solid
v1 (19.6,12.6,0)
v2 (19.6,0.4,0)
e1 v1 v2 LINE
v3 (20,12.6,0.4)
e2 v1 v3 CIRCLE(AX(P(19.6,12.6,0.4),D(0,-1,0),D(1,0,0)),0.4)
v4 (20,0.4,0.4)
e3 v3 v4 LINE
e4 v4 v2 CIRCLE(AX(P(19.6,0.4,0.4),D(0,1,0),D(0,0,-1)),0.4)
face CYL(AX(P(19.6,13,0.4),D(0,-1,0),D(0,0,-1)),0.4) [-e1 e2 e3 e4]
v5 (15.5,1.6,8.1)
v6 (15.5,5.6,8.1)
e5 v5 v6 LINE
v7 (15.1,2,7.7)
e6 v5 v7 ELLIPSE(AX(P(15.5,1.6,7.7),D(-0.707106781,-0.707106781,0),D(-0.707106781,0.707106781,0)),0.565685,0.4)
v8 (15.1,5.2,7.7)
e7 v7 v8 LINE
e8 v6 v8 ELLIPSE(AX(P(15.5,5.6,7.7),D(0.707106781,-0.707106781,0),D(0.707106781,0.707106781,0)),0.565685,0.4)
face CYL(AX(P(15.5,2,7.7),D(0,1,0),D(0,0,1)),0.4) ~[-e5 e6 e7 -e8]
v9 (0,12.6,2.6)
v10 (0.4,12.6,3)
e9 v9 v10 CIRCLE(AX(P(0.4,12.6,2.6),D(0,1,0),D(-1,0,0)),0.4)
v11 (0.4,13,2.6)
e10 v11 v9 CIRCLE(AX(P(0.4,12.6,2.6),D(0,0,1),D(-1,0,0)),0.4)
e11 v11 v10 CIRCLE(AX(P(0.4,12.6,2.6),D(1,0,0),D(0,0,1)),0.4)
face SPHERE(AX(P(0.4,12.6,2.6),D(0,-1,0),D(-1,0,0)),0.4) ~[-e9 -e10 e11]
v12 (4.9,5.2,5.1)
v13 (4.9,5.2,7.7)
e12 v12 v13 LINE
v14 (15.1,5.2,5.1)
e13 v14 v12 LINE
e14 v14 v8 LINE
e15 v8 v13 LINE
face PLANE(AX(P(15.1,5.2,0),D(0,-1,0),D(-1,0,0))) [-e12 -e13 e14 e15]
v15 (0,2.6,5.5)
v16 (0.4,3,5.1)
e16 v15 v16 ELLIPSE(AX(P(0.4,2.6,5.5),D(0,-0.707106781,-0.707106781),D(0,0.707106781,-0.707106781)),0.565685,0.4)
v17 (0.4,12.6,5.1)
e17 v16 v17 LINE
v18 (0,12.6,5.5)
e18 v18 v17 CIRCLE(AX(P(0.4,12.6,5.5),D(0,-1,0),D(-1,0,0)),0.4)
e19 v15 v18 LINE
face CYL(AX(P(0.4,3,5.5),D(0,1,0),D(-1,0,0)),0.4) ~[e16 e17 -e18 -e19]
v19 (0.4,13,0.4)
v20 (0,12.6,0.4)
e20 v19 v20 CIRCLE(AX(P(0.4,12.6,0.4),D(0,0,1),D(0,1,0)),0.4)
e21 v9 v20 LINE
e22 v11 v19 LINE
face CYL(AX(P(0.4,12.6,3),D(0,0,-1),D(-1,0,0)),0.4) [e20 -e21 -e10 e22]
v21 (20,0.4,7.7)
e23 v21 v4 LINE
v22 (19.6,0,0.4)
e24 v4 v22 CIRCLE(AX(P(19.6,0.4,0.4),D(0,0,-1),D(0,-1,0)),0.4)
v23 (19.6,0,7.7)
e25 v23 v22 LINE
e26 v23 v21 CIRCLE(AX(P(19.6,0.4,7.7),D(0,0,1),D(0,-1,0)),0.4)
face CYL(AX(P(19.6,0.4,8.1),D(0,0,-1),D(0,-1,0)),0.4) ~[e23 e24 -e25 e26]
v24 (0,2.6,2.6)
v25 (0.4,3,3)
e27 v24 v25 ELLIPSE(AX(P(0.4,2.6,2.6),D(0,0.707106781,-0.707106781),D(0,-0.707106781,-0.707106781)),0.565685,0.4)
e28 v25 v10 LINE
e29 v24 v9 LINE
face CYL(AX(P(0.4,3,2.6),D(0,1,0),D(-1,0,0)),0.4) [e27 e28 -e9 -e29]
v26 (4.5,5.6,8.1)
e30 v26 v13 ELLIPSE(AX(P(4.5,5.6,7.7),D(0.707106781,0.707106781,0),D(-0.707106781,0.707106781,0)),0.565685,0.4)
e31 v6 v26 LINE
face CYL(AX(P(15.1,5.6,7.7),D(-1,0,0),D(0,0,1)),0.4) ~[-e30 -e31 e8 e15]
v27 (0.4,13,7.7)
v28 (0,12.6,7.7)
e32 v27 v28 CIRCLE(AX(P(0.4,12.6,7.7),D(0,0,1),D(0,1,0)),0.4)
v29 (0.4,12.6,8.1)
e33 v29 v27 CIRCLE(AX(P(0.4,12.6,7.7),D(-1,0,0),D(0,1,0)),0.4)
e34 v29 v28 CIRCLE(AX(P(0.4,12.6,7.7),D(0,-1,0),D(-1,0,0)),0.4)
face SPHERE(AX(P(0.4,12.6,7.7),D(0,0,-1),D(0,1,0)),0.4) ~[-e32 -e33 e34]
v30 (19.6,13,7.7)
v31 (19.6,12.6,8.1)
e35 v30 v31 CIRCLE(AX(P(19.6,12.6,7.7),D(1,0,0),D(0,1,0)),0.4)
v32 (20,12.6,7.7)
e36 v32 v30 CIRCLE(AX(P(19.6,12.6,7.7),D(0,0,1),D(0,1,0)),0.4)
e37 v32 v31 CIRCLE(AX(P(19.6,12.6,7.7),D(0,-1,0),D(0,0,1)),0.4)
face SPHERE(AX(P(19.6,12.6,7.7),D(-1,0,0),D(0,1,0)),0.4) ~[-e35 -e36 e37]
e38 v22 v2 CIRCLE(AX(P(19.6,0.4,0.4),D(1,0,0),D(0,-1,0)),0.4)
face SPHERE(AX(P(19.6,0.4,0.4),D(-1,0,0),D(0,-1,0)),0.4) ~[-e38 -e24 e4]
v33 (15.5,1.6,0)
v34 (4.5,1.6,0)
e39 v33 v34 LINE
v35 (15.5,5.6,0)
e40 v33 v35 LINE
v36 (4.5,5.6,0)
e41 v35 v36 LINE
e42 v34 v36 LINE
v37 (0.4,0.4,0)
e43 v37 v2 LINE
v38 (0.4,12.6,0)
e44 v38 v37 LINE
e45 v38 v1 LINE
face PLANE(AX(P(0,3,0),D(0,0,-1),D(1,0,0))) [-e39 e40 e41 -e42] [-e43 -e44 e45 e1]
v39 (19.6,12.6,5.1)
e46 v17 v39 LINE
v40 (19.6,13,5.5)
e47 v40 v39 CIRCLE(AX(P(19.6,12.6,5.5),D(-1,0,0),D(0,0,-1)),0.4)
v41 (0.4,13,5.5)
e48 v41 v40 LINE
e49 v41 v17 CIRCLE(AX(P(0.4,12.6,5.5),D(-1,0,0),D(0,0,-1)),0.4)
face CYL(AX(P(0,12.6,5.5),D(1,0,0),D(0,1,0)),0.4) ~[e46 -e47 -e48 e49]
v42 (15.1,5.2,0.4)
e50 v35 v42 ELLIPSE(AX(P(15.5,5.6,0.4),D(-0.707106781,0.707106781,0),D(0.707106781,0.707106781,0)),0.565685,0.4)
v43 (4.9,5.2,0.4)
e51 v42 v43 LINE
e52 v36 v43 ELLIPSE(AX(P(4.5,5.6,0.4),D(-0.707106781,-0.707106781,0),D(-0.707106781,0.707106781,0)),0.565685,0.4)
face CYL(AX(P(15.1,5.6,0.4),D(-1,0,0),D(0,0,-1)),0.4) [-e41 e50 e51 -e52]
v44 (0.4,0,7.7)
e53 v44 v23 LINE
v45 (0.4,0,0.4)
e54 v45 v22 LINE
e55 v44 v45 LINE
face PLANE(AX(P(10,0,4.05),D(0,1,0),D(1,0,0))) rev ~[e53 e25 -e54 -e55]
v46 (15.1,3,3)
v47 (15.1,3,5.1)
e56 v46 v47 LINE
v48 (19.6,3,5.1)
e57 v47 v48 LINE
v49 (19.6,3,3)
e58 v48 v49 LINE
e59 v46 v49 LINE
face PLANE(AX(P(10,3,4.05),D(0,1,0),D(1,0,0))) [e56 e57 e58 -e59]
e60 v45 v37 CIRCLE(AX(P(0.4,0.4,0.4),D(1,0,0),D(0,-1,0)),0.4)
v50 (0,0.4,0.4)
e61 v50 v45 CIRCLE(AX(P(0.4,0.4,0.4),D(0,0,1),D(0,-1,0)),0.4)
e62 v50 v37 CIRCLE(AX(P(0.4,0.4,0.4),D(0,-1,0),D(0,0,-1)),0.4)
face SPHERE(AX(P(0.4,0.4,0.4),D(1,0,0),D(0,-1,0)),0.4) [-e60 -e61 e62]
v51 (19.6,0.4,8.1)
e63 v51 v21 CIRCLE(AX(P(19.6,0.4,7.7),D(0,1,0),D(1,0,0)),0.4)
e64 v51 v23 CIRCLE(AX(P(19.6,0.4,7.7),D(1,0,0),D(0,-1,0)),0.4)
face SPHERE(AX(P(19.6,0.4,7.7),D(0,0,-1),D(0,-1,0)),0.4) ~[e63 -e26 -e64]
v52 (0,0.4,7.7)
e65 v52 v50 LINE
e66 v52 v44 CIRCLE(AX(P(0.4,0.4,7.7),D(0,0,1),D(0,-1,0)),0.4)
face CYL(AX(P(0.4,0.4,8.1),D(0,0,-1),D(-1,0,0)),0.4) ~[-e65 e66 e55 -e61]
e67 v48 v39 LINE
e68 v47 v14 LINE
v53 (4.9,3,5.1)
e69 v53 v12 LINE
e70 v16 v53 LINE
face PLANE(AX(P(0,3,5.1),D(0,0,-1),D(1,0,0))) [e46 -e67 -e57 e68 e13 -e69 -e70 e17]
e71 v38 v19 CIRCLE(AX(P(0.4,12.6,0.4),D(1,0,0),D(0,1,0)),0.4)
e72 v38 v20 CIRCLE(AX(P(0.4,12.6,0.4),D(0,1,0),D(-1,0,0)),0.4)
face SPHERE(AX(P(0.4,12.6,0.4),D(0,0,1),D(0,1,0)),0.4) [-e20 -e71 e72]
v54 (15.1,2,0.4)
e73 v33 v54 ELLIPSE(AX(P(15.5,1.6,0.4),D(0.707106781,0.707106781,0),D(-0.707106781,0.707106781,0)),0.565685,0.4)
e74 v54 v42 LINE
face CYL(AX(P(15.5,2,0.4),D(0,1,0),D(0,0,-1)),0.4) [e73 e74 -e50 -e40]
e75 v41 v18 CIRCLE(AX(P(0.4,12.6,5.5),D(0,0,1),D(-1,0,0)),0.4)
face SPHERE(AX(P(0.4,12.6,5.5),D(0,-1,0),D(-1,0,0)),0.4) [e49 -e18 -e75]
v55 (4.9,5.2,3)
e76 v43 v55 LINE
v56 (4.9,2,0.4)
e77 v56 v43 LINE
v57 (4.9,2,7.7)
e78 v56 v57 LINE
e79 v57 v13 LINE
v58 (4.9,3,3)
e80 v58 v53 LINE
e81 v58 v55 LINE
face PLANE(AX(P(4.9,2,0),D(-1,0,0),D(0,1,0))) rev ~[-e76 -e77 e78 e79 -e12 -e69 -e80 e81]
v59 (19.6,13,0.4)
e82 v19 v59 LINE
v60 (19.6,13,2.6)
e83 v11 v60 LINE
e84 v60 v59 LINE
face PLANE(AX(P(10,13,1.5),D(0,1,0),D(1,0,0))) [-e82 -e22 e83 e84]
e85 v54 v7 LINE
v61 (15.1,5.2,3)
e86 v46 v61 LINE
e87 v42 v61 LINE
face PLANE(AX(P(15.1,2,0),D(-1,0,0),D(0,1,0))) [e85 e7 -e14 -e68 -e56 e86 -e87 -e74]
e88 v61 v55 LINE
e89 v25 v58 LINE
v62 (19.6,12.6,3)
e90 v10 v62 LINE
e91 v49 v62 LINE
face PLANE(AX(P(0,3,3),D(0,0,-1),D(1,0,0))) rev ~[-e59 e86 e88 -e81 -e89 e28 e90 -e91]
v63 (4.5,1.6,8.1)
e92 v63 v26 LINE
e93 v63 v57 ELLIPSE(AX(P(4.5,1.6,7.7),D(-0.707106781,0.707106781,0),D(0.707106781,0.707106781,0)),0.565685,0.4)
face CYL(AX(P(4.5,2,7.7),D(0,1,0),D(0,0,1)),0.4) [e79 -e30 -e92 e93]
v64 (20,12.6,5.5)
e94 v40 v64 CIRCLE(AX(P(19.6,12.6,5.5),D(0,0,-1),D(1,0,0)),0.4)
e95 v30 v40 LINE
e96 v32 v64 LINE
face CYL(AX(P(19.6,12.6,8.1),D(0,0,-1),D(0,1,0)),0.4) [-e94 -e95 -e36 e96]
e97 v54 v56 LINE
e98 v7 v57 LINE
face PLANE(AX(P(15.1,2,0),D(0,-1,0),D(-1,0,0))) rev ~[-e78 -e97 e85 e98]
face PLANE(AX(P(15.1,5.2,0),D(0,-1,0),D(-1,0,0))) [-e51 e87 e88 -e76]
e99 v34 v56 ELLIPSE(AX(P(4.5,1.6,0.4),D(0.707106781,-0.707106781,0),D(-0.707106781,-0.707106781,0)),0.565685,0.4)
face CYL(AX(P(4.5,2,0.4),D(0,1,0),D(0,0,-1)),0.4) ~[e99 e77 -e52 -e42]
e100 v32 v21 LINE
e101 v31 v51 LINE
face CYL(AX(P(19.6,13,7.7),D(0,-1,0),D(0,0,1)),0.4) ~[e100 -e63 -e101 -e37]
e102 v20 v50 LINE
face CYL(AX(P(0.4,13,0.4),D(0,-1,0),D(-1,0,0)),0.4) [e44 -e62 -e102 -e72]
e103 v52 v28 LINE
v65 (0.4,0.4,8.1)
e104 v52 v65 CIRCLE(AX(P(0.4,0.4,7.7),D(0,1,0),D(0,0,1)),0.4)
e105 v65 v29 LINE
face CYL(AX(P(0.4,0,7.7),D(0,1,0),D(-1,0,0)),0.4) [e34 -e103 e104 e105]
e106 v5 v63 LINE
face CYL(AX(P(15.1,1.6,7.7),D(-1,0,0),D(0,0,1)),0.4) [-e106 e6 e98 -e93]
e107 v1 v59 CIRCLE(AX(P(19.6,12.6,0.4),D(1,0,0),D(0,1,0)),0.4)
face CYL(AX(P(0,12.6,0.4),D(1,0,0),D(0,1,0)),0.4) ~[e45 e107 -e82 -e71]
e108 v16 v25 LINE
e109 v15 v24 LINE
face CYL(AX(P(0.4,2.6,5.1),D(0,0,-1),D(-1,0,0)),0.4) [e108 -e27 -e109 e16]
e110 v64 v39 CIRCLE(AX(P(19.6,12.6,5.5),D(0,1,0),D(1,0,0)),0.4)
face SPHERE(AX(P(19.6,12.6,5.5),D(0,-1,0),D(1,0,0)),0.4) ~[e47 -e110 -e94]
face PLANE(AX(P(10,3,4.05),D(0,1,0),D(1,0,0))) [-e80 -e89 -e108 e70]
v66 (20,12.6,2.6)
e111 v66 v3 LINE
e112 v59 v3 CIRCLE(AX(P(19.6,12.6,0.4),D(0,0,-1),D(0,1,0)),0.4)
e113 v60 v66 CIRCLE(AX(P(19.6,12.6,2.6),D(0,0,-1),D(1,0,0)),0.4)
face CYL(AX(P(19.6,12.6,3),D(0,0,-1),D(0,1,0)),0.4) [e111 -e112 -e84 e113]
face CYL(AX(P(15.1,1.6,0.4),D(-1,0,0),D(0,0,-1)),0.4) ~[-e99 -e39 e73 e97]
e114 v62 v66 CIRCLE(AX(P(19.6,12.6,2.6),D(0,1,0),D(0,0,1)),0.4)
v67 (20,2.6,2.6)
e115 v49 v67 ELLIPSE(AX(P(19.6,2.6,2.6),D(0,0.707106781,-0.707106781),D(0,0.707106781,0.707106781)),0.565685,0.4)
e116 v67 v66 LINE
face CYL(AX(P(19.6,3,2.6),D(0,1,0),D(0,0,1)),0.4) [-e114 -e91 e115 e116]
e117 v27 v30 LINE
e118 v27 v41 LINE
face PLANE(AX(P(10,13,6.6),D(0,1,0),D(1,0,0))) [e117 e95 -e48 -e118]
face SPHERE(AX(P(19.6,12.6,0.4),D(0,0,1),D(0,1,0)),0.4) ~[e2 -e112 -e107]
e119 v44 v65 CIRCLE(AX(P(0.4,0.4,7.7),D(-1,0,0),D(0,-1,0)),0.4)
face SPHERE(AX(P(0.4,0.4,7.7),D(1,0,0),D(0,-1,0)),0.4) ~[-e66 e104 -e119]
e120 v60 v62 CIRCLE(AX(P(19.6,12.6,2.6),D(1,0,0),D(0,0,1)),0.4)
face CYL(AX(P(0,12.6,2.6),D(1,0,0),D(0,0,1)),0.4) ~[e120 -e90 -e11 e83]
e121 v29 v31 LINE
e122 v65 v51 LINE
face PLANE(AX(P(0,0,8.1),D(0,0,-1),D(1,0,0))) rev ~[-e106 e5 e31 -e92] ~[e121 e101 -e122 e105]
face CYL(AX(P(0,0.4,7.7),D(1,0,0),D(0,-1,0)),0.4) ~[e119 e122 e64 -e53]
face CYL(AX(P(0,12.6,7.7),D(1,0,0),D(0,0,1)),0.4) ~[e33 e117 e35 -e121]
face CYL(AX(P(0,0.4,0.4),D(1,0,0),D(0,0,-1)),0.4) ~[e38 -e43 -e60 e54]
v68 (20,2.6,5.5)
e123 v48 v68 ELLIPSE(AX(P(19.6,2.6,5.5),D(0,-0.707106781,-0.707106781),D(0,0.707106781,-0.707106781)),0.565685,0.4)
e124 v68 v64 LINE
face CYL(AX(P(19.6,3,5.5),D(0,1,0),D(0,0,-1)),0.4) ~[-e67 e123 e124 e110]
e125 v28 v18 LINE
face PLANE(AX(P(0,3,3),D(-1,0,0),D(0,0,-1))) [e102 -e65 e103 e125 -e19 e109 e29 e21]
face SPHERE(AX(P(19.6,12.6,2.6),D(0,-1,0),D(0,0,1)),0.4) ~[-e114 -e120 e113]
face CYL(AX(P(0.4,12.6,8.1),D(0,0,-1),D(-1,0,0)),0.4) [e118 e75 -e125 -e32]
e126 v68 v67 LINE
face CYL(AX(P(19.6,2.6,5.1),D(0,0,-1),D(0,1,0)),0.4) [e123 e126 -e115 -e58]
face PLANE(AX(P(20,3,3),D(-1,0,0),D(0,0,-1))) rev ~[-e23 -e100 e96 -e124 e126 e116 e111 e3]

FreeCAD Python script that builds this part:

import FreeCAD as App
import Part
import Sketcher
Q = App.Units.Quantity


def edges_at(feature, points):
    """Names of the edges that pass closest to the given points."""
    edges = feature.Shape.Edges
    near = lambda p: min(range(len(edges)), key=lambda i: edges[i].distToShape(Part.Vertex(*p))[0])
    return sorted({f"Edge{near(p) + 1}" for p in points})

doc = App.newDocument("Part")
body = doc.addObject("PartDesign::Body", "Body")

# Sketch on XZ plane
sketch1 = body.newObject("Sketcher::SketchObject", "Sketch")
sketch1.AttachmentSupport = (doc.getObject("XZ_Plane"), [""])
sketch1.MapMode = "FlatFace"
sketch1.addGeometry([
    Part.LineSegment(App.Vector(0, 0, 0), App.Vector(0, 8, 0)),
    Part.LineSegment(App.Vector(0, 8, 0), App.Vector(20, 8, 0)),
    Part.LineSegment(App.Vector(20, 8, 0), App.Vector(20, 0, 0)),
    Part.LineSegment(App.Vector(20, 0, 0), App.Vector(0, 0, 0)),
], False)
sketch1.addConstraint([
    Sketcher.Constraint("Coincident", 0, 2, 1, 1),
    Sketcher.Constraint("Coincident", 1, 2, 2, 1),
    Sketcher.Constraint("Coincident", 2, 2, 3, 1),
    Sketcher.Constraint("Coincident", 3, 2, 0, 1),
    Sketcher.Constraint("Vertical", 0),
    Sketcher.Constraint("Horizontal", 1),
    Sketcher.Constraint("Vertical", 2),
    Sketcher.Constraint("Horizontal", 3),
    Sketcher.Constraint("Coincident", 3, 2, -1, 1),
    Sketcher.Constraint("DistanceX", 1, 1, 1, 2, Q("20 mm")),
    Sketcher.Constraint("DistanceY", 0, 1, 0, 2, Q("8.1 mm")),
])
pad1 = body.newObject("PartDesign::Pad", "Pad")
pad1.Profile = sketch1
pad1.Length = 3
pad1.Reversed = True

# Sketch on XZ plane
sketch2 = body.newObject("Sketcher::SketchObject", "Sketch001")
sketch2.AttachmentSupport = (doc.getObject("XZ_Plane"), [""])
sketch2.MapMode = "FlatFace"
sketch2.AttachmentOffset = App.Placement(App.Vector(0, 0, -3), App.Rotation())
sketch2.addGeometry([
    Part.LineSegment(App.Vector(0, 0, 0), App.Vector(0, 3, 0)),  # 0
    Part.LineSegment(App.Vector(0, 3, 0), App.Vector(20, 3, 0)),  # 1
    Part.LineSegment(App.Vector(20, 3, 0), App.Vector(20, 0, 0)),  # 2
    Part.LineSegment(App.Vector(20, 0, 0), App.Vector(0, 0, 0)),  # 3
    Part.LineSegment(App.Vector(0, 5.1, 0), App.Vector(0, 8.1, 0)),  # 4
    Part.LineSegment(App.Vector(0, 8.1, 0), App.Vector(20, 8.1, 0)),  # 5
    Part.LineSegment(App.Vector(20, 8.1, 0), App.Vector(20, 5.1, 0)),  # 6
    Part.LineSegment(App.Vector(20, 5.1, 0), App.Vector(0, 5.1, 0)),  # 7
], False)
sketch2.addConstraint([
    Sketcher.Constraint("Coincident", 0, 2, 1, 1),
    Sketcher.Constraint("Coincident", 1, 2, 2, 1),
    Sketcher.Constraint("Coincident", 2, 2, 3, 1),
    Sketcher.Constraint("Coincident", 3, 2, 0, 1),
    Sketcher.Constraint("Coincident", 4, 2, 5, 1),
    Sketcher.Constraint("Coincident", 5, 2, 6, 1),
    Sketcher.Constraint("Coincident", 6, 2, 7, 1),
    Sketcher.Constraint("Coincident", 7, 2, 4, 1),
    Sketcher.Constraint("Vertical", 0),
    Sketcher.Constraint("Horizontal", 1),
    Sketcher.Constraint("Vertical", 2),
    Sketcher.Constraint("Horizontal", 3),
    Sketcher.Constraint("Vertical", 4),
    Sketcher.Constraint("Horizontal", 5),
    Sketcher.Constraint("Vertical", 6),
    Sketcher.Constraint("Horizontal", 7),
    Sketcher.Constraint("Coincident", 3, 2, -1, 1),
    Sketcher.Constraint("PointOnObject", 4, 2, -2),
    Sketcher.Constraint("Vertical", 2, 2, 5, 2),
    Sketcher.Constraint("Equal", 2, 4),
    Sketcher.Constraint("DistanceX", 1, 1, 1, 2, Q("20 mm")),
    Sketcher.Constraint("DistanceY", 0, 1, 0, 2, Q("3 mm")),
    Sketcher.Constraint("DistanceY", -1, 1, 4, 2, Q("8.1 mm")),
])
pad2 = body.newObject("PartDesign::Pad", "Pad001")
pad2.Profile = sketch2
pad2.Length = 10
pad2.Reversed = True

# Sketch on XY plane
sketch3 = body.newObject("Sketcher::SketchObject", "Sketch002")
sketch3.AttachmentSupport = (doc.getObject("XY_Plane"), [""])
sketch3.MapMode = "FlatFace"
sketch3.addGeometry([
    Part.LineSegment(App.Vector(15.1, 5.2, 0), App.Vector(15.1, 2, 0)),
    Part.LineSegment(App.Vector(15.1, 2, 0), App.Vector(4.9, 2, 0)),
    Part.LineSegment(App.Vector(4.9, 2, 0), App.Vector(4.9, 5.2, 0)),
    Part.LineSegment(App.Vector(4.9, 5.2, 0), App.Vector(15.1, 5.2, 0)),
], False)
sketch3.addConstraint([
    Sketcher.Constraint("Coincident", 0, 2, 1, 1),
    Sketcher.Constraint("Coincident", 1, 2, 2, 1),
    Sketcher.Constraint("Coincident", 2, 2, 3, 1),
    Sketcher.Constraint("Coincident", 3, 2, 0, 1),
    Sketcher.Constraint("Vertical", 0),
    Sketcher.Constraint("Horizontal", 1),
    Sketcher.Constraint("Vertical", 2),
    Sketcher.Constraint("Horizontal", 3),
    Sketcher.Constraint("DistanceX", 1, 2, 1, 1, Q("10.2 mm")),
    Sketcher.Constraint("DistanceY", 0, 2, 0, 1, Q("3.2 mm")),
    Sketcher.Constraint("DistanceY", -1, 1, 0, 2, Q("2 mm")),
    Sketcher.Constraint("DistanceX", -1, 1, 0, 2, Q("15.1 mm")),
])
pocket1 = body.newObject("PartDesign::Pocket", "Pocket")
pocket1.Profile = sketch3
pocket1.Type = "ThroughAll"
pocket1.Reversed = True
doc.recompute()

fillet = body.newObject("PartDesign::Fillet", "Fillet")
fillet.Base = (pocket1, edges_at(pocket1, [
    (0, 3, 4.05),
    (0, 8, 3),
    (20, 8, 3),
    (0, 13, 1.5),
    (10, 13, 3),
    (20, 13, 1.5),
    (10, 13, 0),
    (20, 3, 4.05),
    (0, 8, 5.1),
    (20, 8, 5.1),
    (0, 13, 6.6),
    (10, 13, 8.1),
    (20, 13, 6.6),
    (10, 13, 5.1),
    (15.1, 3.6, 8.1),
    (10, 5.2, 8.1),
    (4.9, 3.6, 8.1),
    (10, 2, 8.1),
    (15.1, 3.6, 0),
    (10, 2, 0),
    (4.9, 3.6, 0),
    (10, 0, 0),
    (10, 5.2, 0),
    (20, 0, 4.05),
    (10, 0, 8.1),
    (0, 0, 4.05),
    (0, 6.5, 0),
    (20, 6.5, 0),
    (20, 6.5, 8.1),
    (0, 6.5, 8.1),
]))
fillet.Radius = 0.4

doc.recompute()
